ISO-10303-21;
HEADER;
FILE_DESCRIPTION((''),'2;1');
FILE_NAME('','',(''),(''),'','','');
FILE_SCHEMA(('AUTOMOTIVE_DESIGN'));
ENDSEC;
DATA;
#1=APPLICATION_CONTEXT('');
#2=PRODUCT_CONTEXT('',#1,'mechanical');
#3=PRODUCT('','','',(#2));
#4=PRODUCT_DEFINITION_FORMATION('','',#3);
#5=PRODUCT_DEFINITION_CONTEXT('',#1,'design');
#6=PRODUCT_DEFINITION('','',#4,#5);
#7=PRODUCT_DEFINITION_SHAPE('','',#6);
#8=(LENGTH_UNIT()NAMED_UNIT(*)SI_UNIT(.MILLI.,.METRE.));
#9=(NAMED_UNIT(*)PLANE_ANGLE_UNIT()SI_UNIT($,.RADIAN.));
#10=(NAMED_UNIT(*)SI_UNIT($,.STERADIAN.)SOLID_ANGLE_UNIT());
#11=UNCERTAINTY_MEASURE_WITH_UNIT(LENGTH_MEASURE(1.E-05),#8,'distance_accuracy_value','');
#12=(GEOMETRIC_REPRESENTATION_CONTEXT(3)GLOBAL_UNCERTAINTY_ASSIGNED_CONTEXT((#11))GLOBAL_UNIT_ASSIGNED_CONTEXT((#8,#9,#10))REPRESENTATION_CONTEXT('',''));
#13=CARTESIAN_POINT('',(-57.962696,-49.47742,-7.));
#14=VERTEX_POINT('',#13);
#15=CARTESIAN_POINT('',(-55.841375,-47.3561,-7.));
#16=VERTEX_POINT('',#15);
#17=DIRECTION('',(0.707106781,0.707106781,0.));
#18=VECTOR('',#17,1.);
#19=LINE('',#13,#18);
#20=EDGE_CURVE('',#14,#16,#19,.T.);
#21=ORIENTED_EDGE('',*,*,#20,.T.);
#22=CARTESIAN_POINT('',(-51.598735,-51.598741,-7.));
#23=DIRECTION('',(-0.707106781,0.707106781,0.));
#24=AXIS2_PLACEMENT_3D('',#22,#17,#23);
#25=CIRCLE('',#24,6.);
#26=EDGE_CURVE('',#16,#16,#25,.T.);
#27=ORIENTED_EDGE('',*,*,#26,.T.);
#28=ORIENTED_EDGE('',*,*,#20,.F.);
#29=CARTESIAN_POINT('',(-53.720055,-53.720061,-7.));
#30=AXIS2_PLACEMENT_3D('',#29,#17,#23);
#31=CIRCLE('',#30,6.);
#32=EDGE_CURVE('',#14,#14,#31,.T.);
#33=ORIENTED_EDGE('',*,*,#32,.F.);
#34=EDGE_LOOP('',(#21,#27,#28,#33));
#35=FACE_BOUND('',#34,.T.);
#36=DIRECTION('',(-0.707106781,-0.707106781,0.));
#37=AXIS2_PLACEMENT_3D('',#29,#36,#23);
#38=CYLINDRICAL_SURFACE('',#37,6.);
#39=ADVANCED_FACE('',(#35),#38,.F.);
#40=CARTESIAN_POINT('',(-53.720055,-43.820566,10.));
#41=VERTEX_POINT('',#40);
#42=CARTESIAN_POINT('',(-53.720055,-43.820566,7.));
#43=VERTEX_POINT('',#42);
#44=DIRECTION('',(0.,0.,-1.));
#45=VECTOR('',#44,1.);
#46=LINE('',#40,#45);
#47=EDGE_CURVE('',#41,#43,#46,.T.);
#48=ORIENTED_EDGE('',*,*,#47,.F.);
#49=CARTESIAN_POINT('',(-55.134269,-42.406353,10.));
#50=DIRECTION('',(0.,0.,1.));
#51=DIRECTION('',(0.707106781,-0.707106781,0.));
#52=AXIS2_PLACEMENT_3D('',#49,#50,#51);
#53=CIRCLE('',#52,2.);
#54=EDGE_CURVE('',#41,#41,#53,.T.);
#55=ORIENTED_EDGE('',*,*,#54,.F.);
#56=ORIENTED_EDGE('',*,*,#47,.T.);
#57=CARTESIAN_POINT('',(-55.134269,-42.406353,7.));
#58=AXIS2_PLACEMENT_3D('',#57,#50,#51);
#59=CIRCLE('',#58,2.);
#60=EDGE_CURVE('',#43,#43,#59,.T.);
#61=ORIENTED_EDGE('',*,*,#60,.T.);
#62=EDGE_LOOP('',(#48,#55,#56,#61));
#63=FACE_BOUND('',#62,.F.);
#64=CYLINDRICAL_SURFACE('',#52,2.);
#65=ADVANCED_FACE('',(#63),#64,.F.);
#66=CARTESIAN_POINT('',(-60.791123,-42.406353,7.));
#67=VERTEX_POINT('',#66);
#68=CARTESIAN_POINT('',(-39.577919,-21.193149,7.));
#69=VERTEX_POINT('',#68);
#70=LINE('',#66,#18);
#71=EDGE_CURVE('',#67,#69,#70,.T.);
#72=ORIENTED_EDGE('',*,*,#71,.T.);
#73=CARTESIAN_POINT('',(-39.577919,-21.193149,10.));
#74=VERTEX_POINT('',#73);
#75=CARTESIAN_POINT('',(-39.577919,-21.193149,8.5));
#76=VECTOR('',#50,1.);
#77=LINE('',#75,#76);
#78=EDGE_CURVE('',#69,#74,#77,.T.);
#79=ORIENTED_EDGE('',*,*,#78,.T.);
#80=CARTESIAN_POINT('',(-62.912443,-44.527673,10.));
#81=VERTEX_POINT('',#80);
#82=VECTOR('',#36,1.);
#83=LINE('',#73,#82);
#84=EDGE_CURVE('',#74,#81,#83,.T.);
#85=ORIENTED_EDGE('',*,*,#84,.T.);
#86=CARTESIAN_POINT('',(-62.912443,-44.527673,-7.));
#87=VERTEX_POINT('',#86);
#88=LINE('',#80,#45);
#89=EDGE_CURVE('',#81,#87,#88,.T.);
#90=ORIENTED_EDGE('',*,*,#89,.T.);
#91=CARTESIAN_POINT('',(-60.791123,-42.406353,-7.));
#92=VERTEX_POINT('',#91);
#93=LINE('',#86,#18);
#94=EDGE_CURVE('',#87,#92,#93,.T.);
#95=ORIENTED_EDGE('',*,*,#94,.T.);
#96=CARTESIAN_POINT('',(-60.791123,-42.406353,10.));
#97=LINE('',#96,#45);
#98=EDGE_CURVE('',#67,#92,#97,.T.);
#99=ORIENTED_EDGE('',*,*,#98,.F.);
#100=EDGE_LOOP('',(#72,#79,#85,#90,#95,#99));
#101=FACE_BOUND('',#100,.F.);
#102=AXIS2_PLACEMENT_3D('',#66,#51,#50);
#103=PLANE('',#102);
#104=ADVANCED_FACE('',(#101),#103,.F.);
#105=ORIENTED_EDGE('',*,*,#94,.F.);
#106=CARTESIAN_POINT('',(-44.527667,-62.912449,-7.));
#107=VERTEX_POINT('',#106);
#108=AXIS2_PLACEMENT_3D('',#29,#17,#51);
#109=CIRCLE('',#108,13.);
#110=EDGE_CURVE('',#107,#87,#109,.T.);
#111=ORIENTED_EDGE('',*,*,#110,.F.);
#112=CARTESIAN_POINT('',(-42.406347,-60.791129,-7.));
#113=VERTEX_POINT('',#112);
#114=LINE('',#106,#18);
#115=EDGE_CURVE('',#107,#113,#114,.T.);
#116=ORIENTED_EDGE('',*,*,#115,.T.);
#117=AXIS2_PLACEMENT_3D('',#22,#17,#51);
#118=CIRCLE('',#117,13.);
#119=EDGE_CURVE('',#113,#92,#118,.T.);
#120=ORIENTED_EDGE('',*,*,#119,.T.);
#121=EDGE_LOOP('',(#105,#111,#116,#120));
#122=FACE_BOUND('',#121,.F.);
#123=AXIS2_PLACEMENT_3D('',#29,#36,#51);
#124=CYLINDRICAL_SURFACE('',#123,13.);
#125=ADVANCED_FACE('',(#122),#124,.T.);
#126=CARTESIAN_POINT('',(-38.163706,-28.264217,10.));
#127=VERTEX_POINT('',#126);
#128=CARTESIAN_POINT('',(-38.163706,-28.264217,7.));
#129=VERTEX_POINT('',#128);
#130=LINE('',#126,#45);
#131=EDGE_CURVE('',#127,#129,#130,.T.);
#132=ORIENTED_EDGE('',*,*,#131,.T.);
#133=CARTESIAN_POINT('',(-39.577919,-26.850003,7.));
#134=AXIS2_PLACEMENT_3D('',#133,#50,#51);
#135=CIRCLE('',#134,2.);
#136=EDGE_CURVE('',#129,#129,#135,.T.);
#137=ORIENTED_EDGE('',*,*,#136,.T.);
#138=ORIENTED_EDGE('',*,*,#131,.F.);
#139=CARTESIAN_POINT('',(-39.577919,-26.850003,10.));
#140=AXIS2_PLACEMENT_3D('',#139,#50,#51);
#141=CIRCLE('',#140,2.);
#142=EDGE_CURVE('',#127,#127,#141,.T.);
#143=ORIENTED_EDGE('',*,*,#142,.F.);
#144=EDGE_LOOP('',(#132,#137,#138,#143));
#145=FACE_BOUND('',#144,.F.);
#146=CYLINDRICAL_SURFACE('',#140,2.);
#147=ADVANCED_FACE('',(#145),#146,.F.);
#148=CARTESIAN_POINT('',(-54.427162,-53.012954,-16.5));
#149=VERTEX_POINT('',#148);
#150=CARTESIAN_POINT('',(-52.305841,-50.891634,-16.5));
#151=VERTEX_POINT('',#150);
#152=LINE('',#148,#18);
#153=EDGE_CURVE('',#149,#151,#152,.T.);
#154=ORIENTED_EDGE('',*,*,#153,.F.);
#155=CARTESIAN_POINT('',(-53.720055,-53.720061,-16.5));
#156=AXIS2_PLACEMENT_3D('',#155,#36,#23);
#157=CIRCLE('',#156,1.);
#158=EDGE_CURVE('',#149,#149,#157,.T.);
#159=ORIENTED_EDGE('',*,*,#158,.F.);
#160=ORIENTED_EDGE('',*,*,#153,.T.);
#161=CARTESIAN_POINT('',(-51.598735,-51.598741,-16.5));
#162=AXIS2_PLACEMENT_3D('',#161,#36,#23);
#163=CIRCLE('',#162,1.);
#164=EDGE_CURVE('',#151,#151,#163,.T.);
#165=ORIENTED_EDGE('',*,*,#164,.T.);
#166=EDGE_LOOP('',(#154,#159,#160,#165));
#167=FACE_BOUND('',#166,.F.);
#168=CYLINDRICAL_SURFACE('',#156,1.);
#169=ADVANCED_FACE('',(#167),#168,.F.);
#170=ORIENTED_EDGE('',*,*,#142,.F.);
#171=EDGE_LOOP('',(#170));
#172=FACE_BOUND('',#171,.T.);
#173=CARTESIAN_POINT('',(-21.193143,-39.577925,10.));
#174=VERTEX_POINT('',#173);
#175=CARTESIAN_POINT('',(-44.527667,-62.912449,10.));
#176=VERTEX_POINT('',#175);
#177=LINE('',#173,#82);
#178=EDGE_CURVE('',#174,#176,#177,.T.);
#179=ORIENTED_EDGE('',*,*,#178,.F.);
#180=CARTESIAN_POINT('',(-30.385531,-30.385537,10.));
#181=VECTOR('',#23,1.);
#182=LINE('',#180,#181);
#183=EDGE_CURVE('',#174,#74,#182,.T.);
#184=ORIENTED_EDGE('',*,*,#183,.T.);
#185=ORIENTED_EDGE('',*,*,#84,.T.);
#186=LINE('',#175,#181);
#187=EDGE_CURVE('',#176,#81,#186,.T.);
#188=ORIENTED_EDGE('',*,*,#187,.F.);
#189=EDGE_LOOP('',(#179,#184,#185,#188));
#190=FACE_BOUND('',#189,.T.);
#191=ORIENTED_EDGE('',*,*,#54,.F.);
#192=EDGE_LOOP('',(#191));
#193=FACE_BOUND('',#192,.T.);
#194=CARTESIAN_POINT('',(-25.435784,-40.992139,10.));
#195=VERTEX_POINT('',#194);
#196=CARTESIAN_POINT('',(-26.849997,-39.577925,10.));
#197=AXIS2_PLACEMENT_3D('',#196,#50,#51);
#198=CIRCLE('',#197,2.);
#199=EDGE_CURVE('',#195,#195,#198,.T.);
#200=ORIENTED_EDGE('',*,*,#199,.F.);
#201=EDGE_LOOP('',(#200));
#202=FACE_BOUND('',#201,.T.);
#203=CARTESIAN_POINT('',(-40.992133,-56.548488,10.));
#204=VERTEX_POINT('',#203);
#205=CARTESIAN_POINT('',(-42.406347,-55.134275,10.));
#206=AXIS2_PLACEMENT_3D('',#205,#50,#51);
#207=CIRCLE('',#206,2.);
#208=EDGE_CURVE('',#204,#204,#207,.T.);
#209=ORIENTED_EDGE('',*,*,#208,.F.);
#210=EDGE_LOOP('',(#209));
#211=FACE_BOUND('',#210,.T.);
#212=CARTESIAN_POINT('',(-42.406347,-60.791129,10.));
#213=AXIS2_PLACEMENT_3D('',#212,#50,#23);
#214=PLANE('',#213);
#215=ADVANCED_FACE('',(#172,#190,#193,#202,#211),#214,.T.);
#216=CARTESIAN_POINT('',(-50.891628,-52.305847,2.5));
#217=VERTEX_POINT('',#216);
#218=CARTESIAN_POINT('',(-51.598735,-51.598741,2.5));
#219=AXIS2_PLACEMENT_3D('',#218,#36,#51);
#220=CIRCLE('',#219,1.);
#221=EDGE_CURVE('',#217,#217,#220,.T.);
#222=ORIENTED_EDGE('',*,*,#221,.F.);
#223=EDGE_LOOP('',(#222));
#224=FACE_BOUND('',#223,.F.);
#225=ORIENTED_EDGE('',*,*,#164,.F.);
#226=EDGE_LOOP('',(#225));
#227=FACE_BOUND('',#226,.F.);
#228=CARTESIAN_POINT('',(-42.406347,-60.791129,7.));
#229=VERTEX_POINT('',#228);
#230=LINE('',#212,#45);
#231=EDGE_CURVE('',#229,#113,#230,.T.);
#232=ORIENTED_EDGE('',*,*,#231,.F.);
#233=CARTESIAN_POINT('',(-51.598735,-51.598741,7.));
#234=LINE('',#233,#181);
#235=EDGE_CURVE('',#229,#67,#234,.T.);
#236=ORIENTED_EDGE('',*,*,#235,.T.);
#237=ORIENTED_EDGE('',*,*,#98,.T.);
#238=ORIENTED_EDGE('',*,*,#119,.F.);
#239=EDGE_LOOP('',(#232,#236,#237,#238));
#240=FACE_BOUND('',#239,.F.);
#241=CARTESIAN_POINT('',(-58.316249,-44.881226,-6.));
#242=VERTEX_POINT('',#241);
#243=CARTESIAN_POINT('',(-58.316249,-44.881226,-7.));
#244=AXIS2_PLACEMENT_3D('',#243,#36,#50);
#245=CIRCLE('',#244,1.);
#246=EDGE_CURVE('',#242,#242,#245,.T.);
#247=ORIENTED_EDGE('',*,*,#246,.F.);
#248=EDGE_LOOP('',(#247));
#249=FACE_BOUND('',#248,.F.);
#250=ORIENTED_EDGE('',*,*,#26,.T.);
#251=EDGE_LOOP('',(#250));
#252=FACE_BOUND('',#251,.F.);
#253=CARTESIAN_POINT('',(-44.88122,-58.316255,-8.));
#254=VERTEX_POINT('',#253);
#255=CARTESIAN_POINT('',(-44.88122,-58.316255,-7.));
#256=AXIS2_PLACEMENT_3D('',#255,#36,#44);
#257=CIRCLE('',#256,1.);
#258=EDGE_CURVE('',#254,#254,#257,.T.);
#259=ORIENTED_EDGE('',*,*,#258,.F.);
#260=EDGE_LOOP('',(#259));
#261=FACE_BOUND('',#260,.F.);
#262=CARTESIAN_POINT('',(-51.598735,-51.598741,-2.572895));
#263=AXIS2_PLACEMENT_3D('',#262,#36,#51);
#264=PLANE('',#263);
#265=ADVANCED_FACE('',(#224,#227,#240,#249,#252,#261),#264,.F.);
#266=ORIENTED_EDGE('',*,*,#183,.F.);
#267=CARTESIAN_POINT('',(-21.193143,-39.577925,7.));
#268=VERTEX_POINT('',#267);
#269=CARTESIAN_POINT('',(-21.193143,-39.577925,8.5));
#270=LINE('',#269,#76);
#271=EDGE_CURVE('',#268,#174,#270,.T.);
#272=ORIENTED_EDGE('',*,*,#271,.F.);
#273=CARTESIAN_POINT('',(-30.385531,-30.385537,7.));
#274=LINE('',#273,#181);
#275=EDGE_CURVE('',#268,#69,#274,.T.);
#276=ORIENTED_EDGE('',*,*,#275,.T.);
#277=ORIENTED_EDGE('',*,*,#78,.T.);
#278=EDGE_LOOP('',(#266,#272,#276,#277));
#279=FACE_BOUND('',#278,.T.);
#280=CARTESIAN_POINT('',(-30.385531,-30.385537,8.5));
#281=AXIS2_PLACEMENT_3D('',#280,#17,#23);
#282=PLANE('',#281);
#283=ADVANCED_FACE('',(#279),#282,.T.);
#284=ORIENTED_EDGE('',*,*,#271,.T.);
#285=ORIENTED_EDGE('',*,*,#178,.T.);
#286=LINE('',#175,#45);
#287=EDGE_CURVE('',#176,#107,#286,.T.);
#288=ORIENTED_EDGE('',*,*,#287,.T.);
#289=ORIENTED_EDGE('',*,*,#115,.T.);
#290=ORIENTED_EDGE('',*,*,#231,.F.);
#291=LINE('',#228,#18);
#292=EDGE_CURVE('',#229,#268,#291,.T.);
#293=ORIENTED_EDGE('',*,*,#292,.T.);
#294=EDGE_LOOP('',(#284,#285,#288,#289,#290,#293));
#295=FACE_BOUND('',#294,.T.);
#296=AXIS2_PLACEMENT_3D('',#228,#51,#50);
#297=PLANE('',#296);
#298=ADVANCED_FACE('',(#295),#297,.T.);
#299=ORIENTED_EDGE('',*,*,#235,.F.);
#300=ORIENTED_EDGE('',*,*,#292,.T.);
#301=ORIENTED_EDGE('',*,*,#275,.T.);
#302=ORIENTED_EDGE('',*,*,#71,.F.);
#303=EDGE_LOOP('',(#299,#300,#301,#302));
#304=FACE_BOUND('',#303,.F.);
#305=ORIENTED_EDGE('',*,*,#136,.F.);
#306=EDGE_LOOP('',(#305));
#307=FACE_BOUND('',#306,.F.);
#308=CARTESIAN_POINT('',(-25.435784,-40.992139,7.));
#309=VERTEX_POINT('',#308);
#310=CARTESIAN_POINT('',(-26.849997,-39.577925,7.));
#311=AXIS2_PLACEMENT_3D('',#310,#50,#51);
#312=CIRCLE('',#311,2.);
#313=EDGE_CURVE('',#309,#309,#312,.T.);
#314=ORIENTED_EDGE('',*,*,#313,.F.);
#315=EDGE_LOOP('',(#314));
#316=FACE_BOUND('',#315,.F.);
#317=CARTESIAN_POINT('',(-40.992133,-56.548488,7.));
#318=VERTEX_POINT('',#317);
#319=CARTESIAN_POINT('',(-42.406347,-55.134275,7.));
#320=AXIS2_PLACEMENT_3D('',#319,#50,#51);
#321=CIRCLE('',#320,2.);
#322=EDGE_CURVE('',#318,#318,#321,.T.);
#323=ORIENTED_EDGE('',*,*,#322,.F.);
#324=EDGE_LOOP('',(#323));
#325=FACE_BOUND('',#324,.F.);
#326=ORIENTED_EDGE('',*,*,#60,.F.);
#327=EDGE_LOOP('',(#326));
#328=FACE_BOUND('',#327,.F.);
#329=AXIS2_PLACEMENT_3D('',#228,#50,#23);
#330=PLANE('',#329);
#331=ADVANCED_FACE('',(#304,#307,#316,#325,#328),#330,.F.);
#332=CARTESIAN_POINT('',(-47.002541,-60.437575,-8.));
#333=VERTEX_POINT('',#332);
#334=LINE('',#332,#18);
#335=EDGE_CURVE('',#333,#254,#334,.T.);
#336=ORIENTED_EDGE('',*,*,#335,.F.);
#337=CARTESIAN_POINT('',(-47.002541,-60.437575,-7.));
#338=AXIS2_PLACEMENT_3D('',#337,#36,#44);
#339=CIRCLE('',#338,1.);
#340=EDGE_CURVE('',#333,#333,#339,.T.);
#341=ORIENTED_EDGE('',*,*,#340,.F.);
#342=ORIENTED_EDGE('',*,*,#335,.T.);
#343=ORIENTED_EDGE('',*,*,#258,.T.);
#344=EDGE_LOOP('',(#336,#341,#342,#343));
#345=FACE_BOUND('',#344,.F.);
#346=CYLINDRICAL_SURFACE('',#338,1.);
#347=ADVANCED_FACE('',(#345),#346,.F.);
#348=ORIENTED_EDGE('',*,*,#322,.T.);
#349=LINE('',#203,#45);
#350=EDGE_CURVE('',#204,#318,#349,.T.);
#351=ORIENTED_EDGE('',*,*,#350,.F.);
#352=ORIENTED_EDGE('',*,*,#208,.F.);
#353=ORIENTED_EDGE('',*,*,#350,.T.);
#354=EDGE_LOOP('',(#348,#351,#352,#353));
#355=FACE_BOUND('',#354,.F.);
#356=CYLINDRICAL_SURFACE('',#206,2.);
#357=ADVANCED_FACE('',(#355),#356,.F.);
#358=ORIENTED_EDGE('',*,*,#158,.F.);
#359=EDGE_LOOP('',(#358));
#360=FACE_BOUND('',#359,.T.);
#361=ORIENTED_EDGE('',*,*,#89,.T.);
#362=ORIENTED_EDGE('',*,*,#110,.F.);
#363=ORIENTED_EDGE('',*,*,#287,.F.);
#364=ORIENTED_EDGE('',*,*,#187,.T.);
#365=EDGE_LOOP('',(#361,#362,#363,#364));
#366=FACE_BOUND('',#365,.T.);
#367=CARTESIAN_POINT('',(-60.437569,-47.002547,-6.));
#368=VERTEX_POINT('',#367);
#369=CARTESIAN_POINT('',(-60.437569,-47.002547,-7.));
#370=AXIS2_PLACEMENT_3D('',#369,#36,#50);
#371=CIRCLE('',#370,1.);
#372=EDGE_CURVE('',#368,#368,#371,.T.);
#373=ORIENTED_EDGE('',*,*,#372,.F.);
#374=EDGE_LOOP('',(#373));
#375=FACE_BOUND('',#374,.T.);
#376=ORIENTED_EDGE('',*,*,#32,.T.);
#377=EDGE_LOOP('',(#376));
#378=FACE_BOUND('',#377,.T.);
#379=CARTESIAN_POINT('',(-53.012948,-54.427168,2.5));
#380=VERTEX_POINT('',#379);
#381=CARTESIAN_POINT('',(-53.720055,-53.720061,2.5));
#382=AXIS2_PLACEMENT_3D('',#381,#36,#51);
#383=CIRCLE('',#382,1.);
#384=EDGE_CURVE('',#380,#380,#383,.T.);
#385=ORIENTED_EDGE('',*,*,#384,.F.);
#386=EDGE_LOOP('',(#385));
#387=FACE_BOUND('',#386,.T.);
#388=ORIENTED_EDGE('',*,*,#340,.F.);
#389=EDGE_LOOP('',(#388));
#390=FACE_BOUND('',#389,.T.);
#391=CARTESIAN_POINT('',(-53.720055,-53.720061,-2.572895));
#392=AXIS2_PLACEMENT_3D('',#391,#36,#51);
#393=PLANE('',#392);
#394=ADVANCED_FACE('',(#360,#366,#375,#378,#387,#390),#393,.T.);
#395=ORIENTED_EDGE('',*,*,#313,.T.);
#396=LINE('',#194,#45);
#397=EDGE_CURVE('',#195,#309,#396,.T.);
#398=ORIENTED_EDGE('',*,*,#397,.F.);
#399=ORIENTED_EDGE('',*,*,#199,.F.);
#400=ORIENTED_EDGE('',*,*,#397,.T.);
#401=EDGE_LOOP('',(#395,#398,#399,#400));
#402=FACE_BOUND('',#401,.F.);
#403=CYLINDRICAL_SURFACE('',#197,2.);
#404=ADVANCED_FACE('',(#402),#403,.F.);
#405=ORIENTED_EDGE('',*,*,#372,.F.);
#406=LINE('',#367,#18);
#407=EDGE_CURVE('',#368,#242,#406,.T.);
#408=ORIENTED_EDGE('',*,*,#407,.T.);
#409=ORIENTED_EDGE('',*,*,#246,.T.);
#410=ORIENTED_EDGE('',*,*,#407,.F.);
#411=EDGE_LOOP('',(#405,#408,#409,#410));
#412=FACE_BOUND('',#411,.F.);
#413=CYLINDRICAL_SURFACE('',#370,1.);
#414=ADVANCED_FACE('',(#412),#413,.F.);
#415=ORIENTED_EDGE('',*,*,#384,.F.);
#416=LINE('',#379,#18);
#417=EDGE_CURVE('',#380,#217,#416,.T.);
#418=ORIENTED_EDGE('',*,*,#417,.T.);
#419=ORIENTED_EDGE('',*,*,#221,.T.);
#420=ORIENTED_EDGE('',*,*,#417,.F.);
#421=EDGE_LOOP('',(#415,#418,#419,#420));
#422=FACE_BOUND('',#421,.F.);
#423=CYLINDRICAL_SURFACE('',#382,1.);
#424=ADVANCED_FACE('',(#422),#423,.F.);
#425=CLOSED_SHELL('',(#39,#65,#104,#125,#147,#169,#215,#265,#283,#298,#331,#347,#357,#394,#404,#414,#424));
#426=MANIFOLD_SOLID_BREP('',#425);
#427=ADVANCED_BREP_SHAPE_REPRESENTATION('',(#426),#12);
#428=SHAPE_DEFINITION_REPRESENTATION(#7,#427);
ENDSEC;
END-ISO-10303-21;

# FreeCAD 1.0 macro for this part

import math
import FreeCAD as App
import Part
import Sketcher

V = App.Vector
Q = App.Units.Quantity


def add_polygon(sketch, points):
    """Adds a closed chain of lines whose ends are joined by coincident constraints."""
    first, n = sketch.GeometryCount, len(points)
    for a, b in zip(points, points[1:] + points[:1]):
        sketch.addGeometry(Part.LineSegment(App.Vector(*a, 0), App.Vector(*b, 0)), False)
    for i in range(n):
        sketch.addConstraint(Sketcher.Constraint("Coincident", first + i, 2, first + (i + 1) % n, 1))

doc = App.newDocument("Part")
params = doc.addObject("Spreadsheet::Sheet", "Params")
for row, (alias, value) in enumerate([
    ("sketch1_diameter", "12 mm"),
    ("sketch1_radius", "13 mm"),
    ("sketch1_height", "17 mm"),
    ("pad1_length", "3 mm"),
    ("sketch2_width", "26 mm"),
    ("sketch2_height", "3 mm"),
    ("pad2_length", "30 mm"),
    ("sketch3_diameter", "4 mm"),
    ("sketch4_diameter", "2 mm"),
], start=1):
    params.set(f"A{row}", alias)
    params.set(f"B{row}", "=" + value)
    params.setAlias(f"B{row}", alias)

body = doc.addObject("PartDesign::Body", "Body")

sketch1 = body.newObject("Sketcher::SketchObject", "Sketch")
sketch1.AttachmentSupport = (doc.getObject("XZ_Plane"), [""])
sketch1.MapMode = "FlatFace"
sketch1.addGeometry([
    Part.LineSegment(V(13, 17, 0), V(-13, 17, 0)),
    Part.LineSegment(V(-13, 17, 0), V(-13, 0, 0)),
    Part.ArcOfCircle(Part.Circle(V(0, 0, 0), V(0, 0, 1), 13), math.radians(180), math.radians(360)),
    Part.LineSegment(V(13, 0, 0), V(13, 17, 0)),
    Part.Circle(V(0, 0, 0), V(0, 0, 1), 6),
], False)
sketch1.addConstraint([
    Sketcher.Constraint("Coincident", 0, 2, 1, 1),
    Sketcher.Constraint("Tangent", 1, 2, 2, 1),
    Sketcher.Constraint("Tangent", 2, 2, 3, 1),
    Sketcher.Constraint("Coincident", 3, 2, 0, 1),
    Sketcher.Constraint("Horizontal", 0),
    Sketcher.Constraint("Vertical", 1),
    Sketcher.Constraint("Vertical", 3),
    Sketcher.Constraint("Coincident", 2, 3, -1, 1),
    Sketcher.Constraint("Coincident", 4, 3, -1, 1),
    Sketcher.Constraint("Diameter", 4, Q("12 mm")),
    Sketcher.Constraint("Radius", 2, Q("13 mm")),
    Sketcher.Constraint("DistanceY", 1, 2, 1, 1, Q("17 mm")),
])
sketch1.setExpression("Constraints[9]", "Params.sketch1_diameter")
sketch1.setExpression("Constraints[10]", "Params.sketch1_radius")
sketch1.setExpression("Constraints[11]", "Params.sketch1_height")
pad1 = body.newObject("PartDesign::Pad", "Pad")
pad1.Profile = sketch1
pad1.setExpression("Length", "Params.pad1_length")

sketch2 = body.newObject("Sketcher::SketchObject", "Sketch001")
sketch2.AttachmentSupport = (doc.getObject("XZ_Plane"), [""])
sketch2.MapMode = "FlatFace"
sketch2.AttachmentOffset = App.Placement(V(0, 0, 3), App.Rotation())
add_polygon(sketch2, [(-13, 17), (-13, 14), (13, 14), (13, 17)])
sketch2.addConstraint([
    Sketcher.Constraint("Vertical", 0),
    Sketcher.Constraint("Horizontal", 1),
    Sketcher.Constraint("Vertical", 2),
    Sketcher.Constraint("Horizontal", 3),
    Sketcher.Constraint("DistanceX", 1, 1, 1, 2, Q("26 mm")),
    Sketcher.Constraint("DistanceY", 0, 2, 0, 1, Q("3 mm")),
    Sketcher.Constraint("DistanceX", 0, 2, -1, 1, Q("13 mm")),
    Sketcher.Constraint("DistanceY", -1, 1, 0, 2, Q("14 mm")),
])
sketch2.setExpression("Constraints[8]", "Params.sketch2_width")
sketch2.setExpression("Constraints[9]", "Params.sketch2_height")
pad2 = body.newObject("PartDesign::Pad", "Pad001")
pad2.Profile = sketch2
pad2.setExpression("Length", "Params.pad2_length")

sketch3 = body.newObject("Sketcher::SketchObject", "Sketch002")
sketch3.AttachmentSupport = (doc.getObject("XY_Plane"), [""])
sketch3.MapMode = "FlatFace"
sketch3.AttachmentOffset = App.Placement(V(0, 0, 17), App.Rotation())
sketch3.addGeometry([
    Part.Circle(V(9, -7, 0), V(0, 0, 1), 2),
    Part.Circle(V(-9, -7, 0), V(0, 0, 1), 2),
    Part.Circle(V(9, -29, 0), V(0, 0, 1), 2),
    Part.Circle(V(-9, -29, 0), V(0, 0, 1), 2),
], False)
sketch3.addConstraint([
    Sketcher.Constraint("Equal", 0, 1),
    Sketcher.Constraint("Equal", 1, 2),
    Sketcher.Constraint("Equal", 2, 3),
    Sketcher.Constraint("Symmetric", 0, 3, 1, 3, -2),
    Sketcher.Constraint("Symmetric", 2, 3, 3, 3, -2),
    Sketcher.Constraint("Vertical", 0, 3, 2, 3),
    Sketcher.Constraint("Diameter", 0, Q("4 mm")),
    Sketcher.Constraint("DistanceX", -1, 1, 0, 3, Q("9 mm")),
    Sketcher.Constraint("DistanceY", 0, 3, -1, 1, Q("7 mm")),
    Sketcher.Constraint("DistanceY", 2, 3, -1, 1, Q("29 mm")),
])
sketch3.setExpression("Constraints[6]", "Params.sketch3_diameter")
pocket1 = body.newObject("PartDesign::Pocket", "Pocket")
pocket1.Profile = sketch3
pocket1.Type = "ThroughAll"

sketch4 = body.newObject("Sketcher::SketchObject", "Sketch003")
sketch4.AttachmentSupport = (doc.getObject("XZ_Plane"), [""])
sketch4.MapMode = "FlatFace"
sketch4.addGeometry(Part.Circle(V(0, -9.5, 0), V(0, 0, 1), 1), False)
sketch4.addConstraint([
    Sketcher.Constraint("PointOnObject", 0, 3, -2),
    Sketcher.Constraint("Diameter", 0, Q("2 mm")),
    Sketcher.Constraint("DistanceY", 0, 3, -1, 1, Q("9.5 mm")),
])
sketch4.setExpression("Constraints[1]", "Params.sketch4_diameter")
pocket2 = body.newObject("PartDesign::Pocket", "Pocket001")
pocket2.Profile = sketch4
pocket2.Type = "ThroughAll"
pocket2.Reversed = True
doc.recompute()

polarpattern = body.newObject("PartDesign::PolarPattern", "PolarPattern")
polarpattern.Originals = [pocket2]
polarpattern.Axis = (doc.getObject("Y_Axis"), [""])
polarpattern.Angle = 360
polarpattern.Occurrences = 4
body.Tip = polarpattern
body2 = doc.addObject("PartDesign::Body", "Body001")
doc.recompute()

body.Placement = App.Placement(V(-53.720055, -53.720061, -7), App.Rotation(V(0, 0, 1), 135))
boolean = body2.newObject("PartDesign::Boolean", "Boolean")
boolean.Type = "Fuse"
boolean.addObjects([body])

doc.recompute()
